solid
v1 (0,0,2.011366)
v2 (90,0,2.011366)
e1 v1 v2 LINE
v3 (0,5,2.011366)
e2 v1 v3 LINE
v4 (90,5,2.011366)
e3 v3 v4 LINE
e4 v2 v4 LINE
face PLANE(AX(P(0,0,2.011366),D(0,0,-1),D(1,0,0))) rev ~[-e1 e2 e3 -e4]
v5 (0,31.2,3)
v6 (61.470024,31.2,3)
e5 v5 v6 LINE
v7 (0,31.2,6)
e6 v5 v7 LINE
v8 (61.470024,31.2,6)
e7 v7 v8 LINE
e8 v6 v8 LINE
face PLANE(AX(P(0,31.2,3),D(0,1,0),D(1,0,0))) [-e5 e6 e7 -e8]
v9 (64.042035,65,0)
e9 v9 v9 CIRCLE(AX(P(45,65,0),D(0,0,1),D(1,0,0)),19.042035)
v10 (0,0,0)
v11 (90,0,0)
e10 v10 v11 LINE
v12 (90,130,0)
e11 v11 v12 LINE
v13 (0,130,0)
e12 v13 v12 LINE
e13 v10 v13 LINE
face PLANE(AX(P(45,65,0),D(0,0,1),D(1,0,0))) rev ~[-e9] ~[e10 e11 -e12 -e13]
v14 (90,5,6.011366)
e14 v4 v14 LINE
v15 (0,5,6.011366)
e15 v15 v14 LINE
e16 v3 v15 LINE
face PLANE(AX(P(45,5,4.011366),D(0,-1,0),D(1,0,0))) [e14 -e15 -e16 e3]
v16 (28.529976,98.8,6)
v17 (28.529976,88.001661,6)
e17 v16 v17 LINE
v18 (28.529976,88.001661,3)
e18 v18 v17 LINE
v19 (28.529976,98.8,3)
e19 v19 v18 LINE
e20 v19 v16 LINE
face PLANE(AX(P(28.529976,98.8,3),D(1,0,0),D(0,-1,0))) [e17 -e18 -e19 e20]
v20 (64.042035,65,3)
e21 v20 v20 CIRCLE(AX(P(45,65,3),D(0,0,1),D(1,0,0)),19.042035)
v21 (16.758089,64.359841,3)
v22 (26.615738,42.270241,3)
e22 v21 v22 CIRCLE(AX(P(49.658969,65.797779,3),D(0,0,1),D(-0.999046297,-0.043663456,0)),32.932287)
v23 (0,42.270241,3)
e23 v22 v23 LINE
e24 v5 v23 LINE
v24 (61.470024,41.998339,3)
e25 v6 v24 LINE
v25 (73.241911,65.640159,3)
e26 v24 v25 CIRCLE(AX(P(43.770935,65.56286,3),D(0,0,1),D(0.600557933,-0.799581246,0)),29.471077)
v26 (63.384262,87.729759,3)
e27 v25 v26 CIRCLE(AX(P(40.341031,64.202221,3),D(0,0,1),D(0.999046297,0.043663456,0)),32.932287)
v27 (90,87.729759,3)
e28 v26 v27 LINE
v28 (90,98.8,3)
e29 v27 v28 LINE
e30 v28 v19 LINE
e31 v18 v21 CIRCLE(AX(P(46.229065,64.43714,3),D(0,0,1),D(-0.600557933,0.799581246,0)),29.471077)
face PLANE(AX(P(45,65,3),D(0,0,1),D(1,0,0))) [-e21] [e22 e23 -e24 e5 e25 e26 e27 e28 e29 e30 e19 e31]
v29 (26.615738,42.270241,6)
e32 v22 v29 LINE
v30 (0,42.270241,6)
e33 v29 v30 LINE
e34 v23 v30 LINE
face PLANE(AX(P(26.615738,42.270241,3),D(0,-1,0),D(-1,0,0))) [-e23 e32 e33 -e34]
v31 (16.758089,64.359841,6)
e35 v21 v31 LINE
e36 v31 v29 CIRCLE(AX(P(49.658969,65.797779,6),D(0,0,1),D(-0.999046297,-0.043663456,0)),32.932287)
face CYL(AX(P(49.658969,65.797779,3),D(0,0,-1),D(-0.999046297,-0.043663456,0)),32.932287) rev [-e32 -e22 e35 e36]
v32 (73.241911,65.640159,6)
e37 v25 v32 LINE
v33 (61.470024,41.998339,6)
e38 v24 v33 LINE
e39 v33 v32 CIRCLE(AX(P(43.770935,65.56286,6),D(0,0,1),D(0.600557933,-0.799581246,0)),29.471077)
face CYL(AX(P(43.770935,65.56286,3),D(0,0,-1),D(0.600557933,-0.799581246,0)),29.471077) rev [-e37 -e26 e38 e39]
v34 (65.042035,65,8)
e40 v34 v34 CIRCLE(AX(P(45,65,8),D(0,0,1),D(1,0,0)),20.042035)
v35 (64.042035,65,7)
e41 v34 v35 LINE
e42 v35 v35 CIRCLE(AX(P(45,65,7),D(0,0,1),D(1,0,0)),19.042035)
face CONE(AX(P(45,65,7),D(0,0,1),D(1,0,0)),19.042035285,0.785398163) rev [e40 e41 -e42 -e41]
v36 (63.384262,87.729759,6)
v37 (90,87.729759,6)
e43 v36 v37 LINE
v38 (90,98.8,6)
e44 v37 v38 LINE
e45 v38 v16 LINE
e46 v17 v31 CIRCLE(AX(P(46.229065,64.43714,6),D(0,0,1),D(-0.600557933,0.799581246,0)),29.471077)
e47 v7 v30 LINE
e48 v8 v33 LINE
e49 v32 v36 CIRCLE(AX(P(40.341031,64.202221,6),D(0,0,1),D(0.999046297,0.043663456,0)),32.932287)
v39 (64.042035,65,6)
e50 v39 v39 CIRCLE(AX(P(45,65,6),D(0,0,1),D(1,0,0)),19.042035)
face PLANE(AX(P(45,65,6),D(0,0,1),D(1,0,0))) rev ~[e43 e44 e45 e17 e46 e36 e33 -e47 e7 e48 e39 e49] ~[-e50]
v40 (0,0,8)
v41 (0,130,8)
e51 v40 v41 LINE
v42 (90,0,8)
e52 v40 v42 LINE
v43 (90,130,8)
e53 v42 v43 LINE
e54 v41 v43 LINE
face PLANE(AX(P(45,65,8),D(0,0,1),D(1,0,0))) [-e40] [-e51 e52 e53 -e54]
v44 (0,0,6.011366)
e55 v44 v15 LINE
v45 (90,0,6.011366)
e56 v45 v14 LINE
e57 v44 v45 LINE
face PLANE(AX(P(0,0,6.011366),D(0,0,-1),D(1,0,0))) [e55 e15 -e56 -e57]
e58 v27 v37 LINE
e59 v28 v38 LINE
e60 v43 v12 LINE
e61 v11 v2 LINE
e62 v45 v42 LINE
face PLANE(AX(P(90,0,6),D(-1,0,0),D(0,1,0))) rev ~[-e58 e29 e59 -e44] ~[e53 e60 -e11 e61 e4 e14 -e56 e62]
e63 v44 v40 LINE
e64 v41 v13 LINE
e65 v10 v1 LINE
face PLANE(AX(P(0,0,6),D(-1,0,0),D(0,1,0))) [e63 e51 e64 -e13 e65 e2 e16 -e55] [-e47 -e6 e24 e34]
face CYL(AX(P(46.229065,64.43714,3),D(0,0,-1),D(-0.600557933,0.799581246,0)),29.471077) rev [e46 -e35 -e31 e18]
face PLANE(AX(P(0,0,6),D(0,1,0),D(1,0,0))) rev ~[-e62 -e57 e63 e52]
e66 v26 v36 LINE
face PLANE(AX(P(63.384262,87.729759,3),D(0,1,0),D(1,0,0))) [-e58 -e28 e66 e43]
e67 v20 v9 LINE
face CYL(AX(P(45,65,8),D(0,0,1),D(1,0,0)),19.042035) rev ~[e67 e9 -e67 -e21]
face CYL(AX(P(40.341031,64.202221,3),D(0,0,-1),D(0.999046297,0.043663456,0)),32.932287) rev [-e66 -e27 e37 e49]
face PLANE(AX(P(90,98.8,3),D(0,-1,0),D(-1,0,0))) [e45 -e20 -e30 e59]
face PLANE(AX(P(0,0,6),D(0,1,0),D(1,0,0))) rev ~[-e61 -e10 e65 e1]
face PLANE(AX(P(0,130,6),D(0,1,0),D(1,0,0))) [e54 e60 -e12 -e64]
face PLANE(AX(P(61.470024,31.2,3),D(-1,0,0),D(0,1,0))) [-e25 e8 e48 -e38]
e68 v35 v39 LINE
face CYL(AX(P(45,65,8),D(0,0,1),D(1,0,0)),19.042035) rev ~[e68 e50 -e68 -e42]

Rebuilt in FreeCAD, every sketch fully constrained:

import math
import FreeCAD as App
import Part
import Sketcher
from FreeCAD import Vector
Q = App.Units.Quantity


def edges_at(feature, points):
    """Names of the edges that pass closest to the given points."""
    edges = feature.Shape.Edges
    near = lambda p: min(range(len(edges)), key=lambda i: edges[i].distToShape(Part.Vertex(*p))[0])
    return sorted({f"Edge{near(p) + 1}" for p in points})

doc = App.newDocument("Part")
body = doc.addObject("PartDesign::Body", "Body")

# Sketch on XY plane
sketch1 = doc.addObject("Sketcher::SketchObject", "Sketch")
body.addObject(sketch1)
sketch1.AttachmentSupport = (doc.XY_Plane, [""])
sketch1.MapMode = "FlatFace"
sketch1.addGeometry(Part.LineSegment(Vector(0, 130, 0), Vector(0, 0, 0)), False)
sketch1.addGeometry(Part.LineSegment(Vector(0, 0, 0), Vector(90, 0, 0)), False)
sketch1.addGeometry(Part.LineSegment(Vector(90, 0, 0), Vector(90, 130, 0)), False)
sketch1.addGeometry(Part.LineSegment(Vector(90, 130, 0), Vector(0, 130, 0)), False)
sketch1.addConstraint(Sketcher.Constraint("Coincident", 0, 2, 1, 1))
sketch1.addConstraint(Sketcher.Constraint("Coincident", 1, 2, 2, 1))
sketch1.addConstraint(Sketcher.Constraint("Coincident", 2, 2, 3, 1))
sketch1.addConstraint(Sketcher.Constraint("Coincident", 3, 2, 0, 1))
sketch1.addConstraint(Sketcher.Constraint("Vertical", 0))
sketch1.addConstraint(Sketcher.Constraint("Horizontal", 1))
sketch1.addConstraint(Sketcher.Constraint("Vertical", 2))
sketch1.addConstraint(Sketcher.Constraint("Horizontal", 3))
sketch1.addConstraint(Sketcher.Constraint("Coincident", 0, 2, -1, 1))
sketch1.addConstraint(Sketcher.Constraint("DistanceX", 1, 1, 1, 2, Q("90 mm")))
sketch1.addConstraint(Sketcher.Constraint("DistanceY", 0, 2, 0, 1, Q("130 mm")))
pad1 = doc.addObject("PartDesign::Pad", "Pad")
body.addObject(pad1)
pad1.Profile = sketch1
pad1.Length = 3

# Sketch on XY plane
sketch2 = doc.addObject("Sketcher::SketchObject", "Sketch001")
body.addObject(sketch2)
sketch2.AttachmentSupport = (doc.XY_Plane, [""])
sketch2.MapMode = "FlatFace"
sketch2.AttachmentOffset = App.Placement(Vector(0, 0, 3), App.Rotation())
sketch2.addGeometry(Part.LineSegment(Vector(0, 0, 0), Vector(90, 0, 0)), False)
sketch2.addGeometry(Part.LineSegment(Vector(90, 0, 0), Vector(90, 88, 0)), False)
sketch2.addGeometry(Part.LineSegment(Vector(90, 88, 0), Vector(63, 88, 0)), False)
sketch2.addGeometry(Part.ArcOfCircle(Part.Circle(Vector(40, 64, 0), Vector(0, 0, 1), 33), math.radians(3), math.radians(46)), False)
sketch2.addGeometry(Part.ArcOfCircle(Part.Circle(Vector(44, 66, 0), Vector(0, 0, 1), 29), math.radians(-53), math.radians(0)), False)
sketch2.addGeometry(Part.LineSegment(Vector(61, 42, 0), Vector(61, 31, 0)), False)
sketch2.addGeometry(Part.LineSegment(Vector(61, 31, 0), Vector(0, 31, 0)), False)
sketch2.addGeometry(Part.LineSegment(Vector(0, 31, 0), Vector(0, 0, 0)), False)
sketch2.addConstraint(Sketcher.Constraint("Coincident", 0, 2, 1, 1))
sketch2.addConstraint(Sketcher.Constraint("Coincident", 1, 2, 2, 1))
sketch2.addConstraint(Sketcher.Constraint("Coincident", 2, 2, 3, 2))
sketch2.addConstraint(Sketcher.Constraint("Coincident", 3, 1, 4, 2))
sketch2.addConstraint(Sketcher.Constraint("Coincident", 4, 1, 5, 1))
sketch2.addConstraint(Sketcher.Constraint("Coincident", 5, 2, 6, 1))
sketch2.addConstraint(Sketcher.Constraint("Coincident", 6, 2, 7, 1))
sketch2.addConstraint(Sketcher.Constraint("Coincident", 7, 2, 0, 1))
sketch2.addConstraint(Sketcher.Constraint("Horizontal", 0))
sketch2.addConstraint(Sketcher.Constraint("Vertical", 1))
sketch2.addConstraint(Sketcher.Constraint("Horizontal", 2))
sketch2.addConstraint(Sketcher.Constraint("Vertical", 5))
sketch2.addConstraint(Sketcher.Constraint("Horizontal", 6))
sketch2.addConstraint(Sketcher.Constraint("Vertical", 7))
sketch2.addConstraint(Sketcher.Constraint("Coincident", 7, 2, -1, 1))
sketch2.addConstraint(Sketcher.Constraint("DistanceX", 0, 1, 0, 2, Q("90 mm")))
sketch2.addConstraint(Sketcher.Constraint("DistanceY", 7, 2, 7, 1, Q("31.2 mm")))
sketch2.addConstraint(Sketcher.Constraint("Radius", 3, Q("32.932287 mm")))
sketch2.addConstraint(Sketcher.Constraint("Radius", 4, Q("29.471077 mm")))
sketch2.addConstraint(Sketcher.Constraint("DistanceX", 2, 2, 2, 1, Q("26.615738 mm")))
sketch2.addConstraint(Sketcher.Constraint("DistanceY", 1, 1, 1, 2, Q("87.729759 mm")))
sketch2.addConstraint(Sketcher.Constraint("DistanceY", 5, 2, 5, 1, Q("10.798339 mm")))
sketch2.addConstraint(Sketcher.Constraint("DistanceY", 4, 3, 1, 2, Q("22.166899 mm")))
sketch2.addConstraint(Sketcher.Constraint("DistanceY", 3, 1, 2, 2, Q("22.089601 mm")))
sketch2.addConstraint(Sketcher.Constraint("DistanceX", 6, 2, 6, 1, Q("61.470024 mm")))
pad2 = doc.addObject("PartDesign::Pad", "Pad001")
body.addObject(pad2)
pad2.Profile = sketch2
pad2.Length = 3
body2 = doc.addObject("PartDesign::Body", "Body001")

# Sketch on XY plane
sketch3 = doc.addObject("Sketcher::SketchObject", "Sketch002")
body2.addObject(sketch3)
sketch3.AttachmentSupport = (doc.getObject("XY_Plane001"), [""])
sketch3.MapMode = "FlatFace"
sketch3.AttachmentOffset = App.Placement(Vector(0, 0, 3), App.Rotation())
sketch3.addGeometry(Part.LineSegment(Vector(90, 130, 0), Vector(0, 130, 0)), False)
sketch3.addGeometry(Part.LineSegment(Vector(0, 130, 0), Vector(0, 42, 0)), False)
sketch3.addGeometry(Part.LineSegment(Vector(0, 42, 0), Vector(27, 42, 0)), False)
sketch3.addGeometry(Part.ArcOfCircle(Part.Circle(Vector(50, 66, 0), Vector(0, 0, 1), 33), math.radians(-177), math.radians(-134)), False)
sketch3.addGeometry(Part.ArcOfCircle(Part.Circle(Vector(46, 64, 0), Vector(0, 0, 1), 29), math.radians(127), math.radians(180)), False)
sketch3.addGeometry(Part.LineSegment(Vector(29, 88, 0), Vector(29, 99, 0)), False)
sketch3.addGeometry(Part.LineSegment(Vector(29, 99, 0), Vector(90, 99, 0)), False)
sketch3.addGeometry(Part.LineSegment(Vector(90, 99, 0), Vector(90, 130, 0)), False)
sketch3.addConstraint(Sketcher.Constraint("Coincident", 0, 2, 1, 1))
sketch3.addConstraint(Sketcher.Constraint("Coincident", 1, 2, 2, 1))
sketch3.addConstraint(Sketcher.Constraint("Coincident", 2, 2, 3, 2))
sketch3.addConstraint(Sketcher.Constraint("Coincident", 3, 1, 4, 2))
sketch3.addConstraint(Sketcher.Constraint("Coincident", 4, 1, 5, 1))
sketch3.addConstraint(Sketcher.Constraint("Coincident", 5, 2, 6, 1))
sketch3.addConstraint(Sketcher.Constraint("Coincident", 6, 2, 7, 1))
sketch3.addConstraint(Sketcher.Constraint("Coincident", 7, 2, 0, 1))
sketch3.addConstraint(Sketcher.Constraint("Horizontal", 0))
sketch3.addConstraint(Sketcher.Constraint("Vertical", 1))
sketch3.addConstraint(Sketcher.Constraint("Horizontal", 2))
sketch3.addConstraint(Sketcher.Constraint("Vertical", 5))
sketch3.addConstraint(Sketcher.Constraint("Horizontal", 6))
sketch3.addConstraint(Sketcher.Constraint("Vertical", 7))
sketch3.addConstraint(Sketcher.Constraint("PointOnObject", 0, 2, -2))
sketch3.addConstraint(Sketcher.Constraint("DistanceX", 0, 2, 0, 1, Q("90 mm")))
sketch3.addConstraint(Sketcher.Constraint("DistanceY", 7, 1, 7, 2, Q("31.2 mm")))
sketch3.addConstraint(Sketcher.Constraint("DistanceY", -1, 1, 0, 2, Q("130 mm")))
sketch3.addConstraint(Sketcher.Constraint("Radius", 3, Q("32.932287 mm")))
sketch3.addConstraint(Sketcher.Constraint("Radius", 4, Q("29.471077 mm")))
sketch3.addConstraint(Sketcher.Constraint("DistanceX", 2, 1, 2, 2, Q("26.615738 mm")))
sketch3.addConstraint(Sketcher.Constraint("DistanceY", 1, 2, 1, 1, Q("87.729759 mm")))
sketch3.addConstraint(Sketcher.Constraint("DistanceY", 5, 1, 5, 2, Q("10.798339 mm")))
sketch3.addConstraint(Sketcher.Constraint("DistanceY", 1, 2, 4, 3, Q("22.166899 mm")))
sketch3.addConstraint(Sketcher.Constraint("DistanceY", 2, 2, 3, 1, Q("22.089601 mm")))
sketch3.addConstraint(Sketcher.Constraint("DistanceX", 6, 1, 6, 2, Q("61.470024 mm")))
pad3 = doc.addObject("PartDesign::Pad", "Pad002")
body2.addObject(pad3)
pad3.Profile = sketch3
pad3.Length = 3
doc.recompute()

boolean = doc.addObject("PartDesign::Boolean", "Boolean")
body2.addObject(boolean)
boolean.Type = "Fuse"
boolean.addObjects([body])

# Sketch on XY plane
sketch4 = doc.addObject("Sketcher::SketchObject", "Sketch003")
body2.addObject(sketch4)
sketch4.AttachmentSupport = (doc.getObject("XY_Plane001"), [""])
sketch4.MapMode = "FlatFace"
sketch4.AttachmentOffset = App.Placement(Vector(0, 0, 6), App.Rotation())
sketch4.addGeometry(Part.LineSegment(Vector(0, 130, 0), Vector(0, 0, 0)), False)
sketch4.addGeometry(Part.LineSegment(Vector(0, 0, 0), Vector(90, 0, 0)), False)
sketch4.addGeometry(Part.LineSegment(Vector(90, 0, 0), Vector(90, 130, 0)), False)
sketch4.addGeometry(Part.LineSegment(Vector(90, 130, 0), Vector(0, 130, 0)), False)
sketch4.addConstraint(Sketcher.Constraint("Coincident", 0, 2, 1, 1))
sketch4.addConstraint(Sketcher.Constraint("Coincident", 1, 2, 2, 1))
sketch4.addConstraint(Sketcher.Constraint("Coincident", 2, 2, 3, 1))
sketch4.addConstraint(Sketcher.Constraint("Coincident", 3, 2, 0, 1))
sketch4.addConstraint(Sketcher.Constraint("Vertical", 0))
sketch4.addConstraint(Sketcher.Constraint("Horizontal", 1))
sketch4.addConstraint(Sketcher.Constraint("Vertical", 2))
sketch4.addConstraint(Sketcher.Constraint("Horizontal", 3))
sketch4.addConstraint(Sketcher.Constraint("Coincident", 0, 2, -1, 1))
sketch4.addConstraint(Sketcher.Constraint("DistanceX", 1, 1, 1, 2, Q("90 mm")))
sketch4.addConstraint(Sketcher.Constraint("DistanceY", 0, 2, 0, 1, Q("130 mm")))
pad4 = doc.addObject("PartDesign::Pad", "Pad003")
body2.addObject(pad4)
pad4.Profile = sketch4
pad4.Length = 2

# Sketch on XY plane
sketch5 = doc.addObject("Sketcher::SketchObject", "Sketch004")
body2.addObject(sketch5)
sketch5.AttachmentSupport = (doc.getObject("XY_Plane001"), [""])
sketch5.MapMode = "FlatFace"
sketch5.AttachmentOffset = App.Placement(Vector(0, 0, 8), App.Rotation())
sketch5.addGeometry(Part.Circle(Vector(45, 65, 0), Vector(0, 0, 1), 19), False)
sketch5.addConstraint(Sketcher.Constraint("DistanceX", -1, 1, 0, 3, Q("45 mm")))
sketch5.addConstraint(Sketcher.Constraint("DistanceY", -1, 1, 0, 3, Q("65 mm")))
sketch5.addConstraint(Sketcher.Constraint("Diameter", 0, Q("38.084071 mm")))
pocket1 = doc.addObject("PartDesign::Pocket", "Pocket")
body2.addObject(pocket1)
pocket1.Profile = sketch5
pocket1.Length = 10
doc.recompute()

chamfer = doc.addObject("PartDesign::Chamfer", "Chamfer")
body2.addObject(chamfer)
chamfer.Base = (pocket1, edges_at(pocket1, [(25.958, 65, 8)]))
chamfer.Size = 1

# Sketch on XZ plane
sketch6 = doc.addObject("Sketcher::SketchObject", "Sketch005")
body2.addObject(sketch6)
sketch6.AttachmentSupport = (doc.getObject("XZ_Plane001"), [""])
sketch6.MapMode = "FlatFace"
sketch6.addGeometry(Part.LineSegment(Vector(0, 6, 0), Vector(0, 2, 0)), False)
sketch6.addGeometry(Part.LineSegment(Vector(0, 2, 0), Vector(90, 2, 0)), False)
sketch6.addGeometry(Part.LineSegment(Vector(90, 2, 0), Vector(90, 6, 0)), False)
sketch6.addGeometry(Part.LineSegment(Vector(90, 6, 0), Vector(0, 6, 0)), False)
sketch6.addConstraint(Sketcher.Constraint("Coincident", 0, 2, 1, 1))
sketch6.addConstraint(Sketcher.Constraint("Coincident", 1, 2, 2, 1))
sketch6.addConstraint(Sketcher.Constraint("Coincident", 2, 2, 3, 1))
sketch6.addConstraint(Sketcher.Constraint("Coincident", 3, 2, 0, 1))
sketch6.addConstraint(Sketcher.Constraint("Vertical", 0))
sketch6.addConstraint(Sketcher.Constraint("Horizontal", 1))
sketch6.addConstraint(Sketcher.Constraint("Vertical", 2))
sketch6.addConstraint(Sketcher.Constraint("Horizontal", 3))
sketch6.addConstraint(Sketcher.Constraint("PointOnObject", 0, 2, -2))
sketch6.addConstraint(Sketcher.Constraint("DistanceX", 1, 1, 1, 2, Q("90 mm")))
sketch6.addConstraint(Sketcher.Constraint("DistanceY", 0, 2, 0, 1, Q("4 mm")))
sketch6.addConstraint(Sketcher.Constraint("DistanceY", -1, 1, 0, 2, Q("2.011366 mm")))
pocket2 = doc.addObject("PartDesign::Pocket", "Pocket001")
body2.addObject(pocket2)
pocket2.Profile = sketch6
pocket2.Length = 5

doc.recompute()
